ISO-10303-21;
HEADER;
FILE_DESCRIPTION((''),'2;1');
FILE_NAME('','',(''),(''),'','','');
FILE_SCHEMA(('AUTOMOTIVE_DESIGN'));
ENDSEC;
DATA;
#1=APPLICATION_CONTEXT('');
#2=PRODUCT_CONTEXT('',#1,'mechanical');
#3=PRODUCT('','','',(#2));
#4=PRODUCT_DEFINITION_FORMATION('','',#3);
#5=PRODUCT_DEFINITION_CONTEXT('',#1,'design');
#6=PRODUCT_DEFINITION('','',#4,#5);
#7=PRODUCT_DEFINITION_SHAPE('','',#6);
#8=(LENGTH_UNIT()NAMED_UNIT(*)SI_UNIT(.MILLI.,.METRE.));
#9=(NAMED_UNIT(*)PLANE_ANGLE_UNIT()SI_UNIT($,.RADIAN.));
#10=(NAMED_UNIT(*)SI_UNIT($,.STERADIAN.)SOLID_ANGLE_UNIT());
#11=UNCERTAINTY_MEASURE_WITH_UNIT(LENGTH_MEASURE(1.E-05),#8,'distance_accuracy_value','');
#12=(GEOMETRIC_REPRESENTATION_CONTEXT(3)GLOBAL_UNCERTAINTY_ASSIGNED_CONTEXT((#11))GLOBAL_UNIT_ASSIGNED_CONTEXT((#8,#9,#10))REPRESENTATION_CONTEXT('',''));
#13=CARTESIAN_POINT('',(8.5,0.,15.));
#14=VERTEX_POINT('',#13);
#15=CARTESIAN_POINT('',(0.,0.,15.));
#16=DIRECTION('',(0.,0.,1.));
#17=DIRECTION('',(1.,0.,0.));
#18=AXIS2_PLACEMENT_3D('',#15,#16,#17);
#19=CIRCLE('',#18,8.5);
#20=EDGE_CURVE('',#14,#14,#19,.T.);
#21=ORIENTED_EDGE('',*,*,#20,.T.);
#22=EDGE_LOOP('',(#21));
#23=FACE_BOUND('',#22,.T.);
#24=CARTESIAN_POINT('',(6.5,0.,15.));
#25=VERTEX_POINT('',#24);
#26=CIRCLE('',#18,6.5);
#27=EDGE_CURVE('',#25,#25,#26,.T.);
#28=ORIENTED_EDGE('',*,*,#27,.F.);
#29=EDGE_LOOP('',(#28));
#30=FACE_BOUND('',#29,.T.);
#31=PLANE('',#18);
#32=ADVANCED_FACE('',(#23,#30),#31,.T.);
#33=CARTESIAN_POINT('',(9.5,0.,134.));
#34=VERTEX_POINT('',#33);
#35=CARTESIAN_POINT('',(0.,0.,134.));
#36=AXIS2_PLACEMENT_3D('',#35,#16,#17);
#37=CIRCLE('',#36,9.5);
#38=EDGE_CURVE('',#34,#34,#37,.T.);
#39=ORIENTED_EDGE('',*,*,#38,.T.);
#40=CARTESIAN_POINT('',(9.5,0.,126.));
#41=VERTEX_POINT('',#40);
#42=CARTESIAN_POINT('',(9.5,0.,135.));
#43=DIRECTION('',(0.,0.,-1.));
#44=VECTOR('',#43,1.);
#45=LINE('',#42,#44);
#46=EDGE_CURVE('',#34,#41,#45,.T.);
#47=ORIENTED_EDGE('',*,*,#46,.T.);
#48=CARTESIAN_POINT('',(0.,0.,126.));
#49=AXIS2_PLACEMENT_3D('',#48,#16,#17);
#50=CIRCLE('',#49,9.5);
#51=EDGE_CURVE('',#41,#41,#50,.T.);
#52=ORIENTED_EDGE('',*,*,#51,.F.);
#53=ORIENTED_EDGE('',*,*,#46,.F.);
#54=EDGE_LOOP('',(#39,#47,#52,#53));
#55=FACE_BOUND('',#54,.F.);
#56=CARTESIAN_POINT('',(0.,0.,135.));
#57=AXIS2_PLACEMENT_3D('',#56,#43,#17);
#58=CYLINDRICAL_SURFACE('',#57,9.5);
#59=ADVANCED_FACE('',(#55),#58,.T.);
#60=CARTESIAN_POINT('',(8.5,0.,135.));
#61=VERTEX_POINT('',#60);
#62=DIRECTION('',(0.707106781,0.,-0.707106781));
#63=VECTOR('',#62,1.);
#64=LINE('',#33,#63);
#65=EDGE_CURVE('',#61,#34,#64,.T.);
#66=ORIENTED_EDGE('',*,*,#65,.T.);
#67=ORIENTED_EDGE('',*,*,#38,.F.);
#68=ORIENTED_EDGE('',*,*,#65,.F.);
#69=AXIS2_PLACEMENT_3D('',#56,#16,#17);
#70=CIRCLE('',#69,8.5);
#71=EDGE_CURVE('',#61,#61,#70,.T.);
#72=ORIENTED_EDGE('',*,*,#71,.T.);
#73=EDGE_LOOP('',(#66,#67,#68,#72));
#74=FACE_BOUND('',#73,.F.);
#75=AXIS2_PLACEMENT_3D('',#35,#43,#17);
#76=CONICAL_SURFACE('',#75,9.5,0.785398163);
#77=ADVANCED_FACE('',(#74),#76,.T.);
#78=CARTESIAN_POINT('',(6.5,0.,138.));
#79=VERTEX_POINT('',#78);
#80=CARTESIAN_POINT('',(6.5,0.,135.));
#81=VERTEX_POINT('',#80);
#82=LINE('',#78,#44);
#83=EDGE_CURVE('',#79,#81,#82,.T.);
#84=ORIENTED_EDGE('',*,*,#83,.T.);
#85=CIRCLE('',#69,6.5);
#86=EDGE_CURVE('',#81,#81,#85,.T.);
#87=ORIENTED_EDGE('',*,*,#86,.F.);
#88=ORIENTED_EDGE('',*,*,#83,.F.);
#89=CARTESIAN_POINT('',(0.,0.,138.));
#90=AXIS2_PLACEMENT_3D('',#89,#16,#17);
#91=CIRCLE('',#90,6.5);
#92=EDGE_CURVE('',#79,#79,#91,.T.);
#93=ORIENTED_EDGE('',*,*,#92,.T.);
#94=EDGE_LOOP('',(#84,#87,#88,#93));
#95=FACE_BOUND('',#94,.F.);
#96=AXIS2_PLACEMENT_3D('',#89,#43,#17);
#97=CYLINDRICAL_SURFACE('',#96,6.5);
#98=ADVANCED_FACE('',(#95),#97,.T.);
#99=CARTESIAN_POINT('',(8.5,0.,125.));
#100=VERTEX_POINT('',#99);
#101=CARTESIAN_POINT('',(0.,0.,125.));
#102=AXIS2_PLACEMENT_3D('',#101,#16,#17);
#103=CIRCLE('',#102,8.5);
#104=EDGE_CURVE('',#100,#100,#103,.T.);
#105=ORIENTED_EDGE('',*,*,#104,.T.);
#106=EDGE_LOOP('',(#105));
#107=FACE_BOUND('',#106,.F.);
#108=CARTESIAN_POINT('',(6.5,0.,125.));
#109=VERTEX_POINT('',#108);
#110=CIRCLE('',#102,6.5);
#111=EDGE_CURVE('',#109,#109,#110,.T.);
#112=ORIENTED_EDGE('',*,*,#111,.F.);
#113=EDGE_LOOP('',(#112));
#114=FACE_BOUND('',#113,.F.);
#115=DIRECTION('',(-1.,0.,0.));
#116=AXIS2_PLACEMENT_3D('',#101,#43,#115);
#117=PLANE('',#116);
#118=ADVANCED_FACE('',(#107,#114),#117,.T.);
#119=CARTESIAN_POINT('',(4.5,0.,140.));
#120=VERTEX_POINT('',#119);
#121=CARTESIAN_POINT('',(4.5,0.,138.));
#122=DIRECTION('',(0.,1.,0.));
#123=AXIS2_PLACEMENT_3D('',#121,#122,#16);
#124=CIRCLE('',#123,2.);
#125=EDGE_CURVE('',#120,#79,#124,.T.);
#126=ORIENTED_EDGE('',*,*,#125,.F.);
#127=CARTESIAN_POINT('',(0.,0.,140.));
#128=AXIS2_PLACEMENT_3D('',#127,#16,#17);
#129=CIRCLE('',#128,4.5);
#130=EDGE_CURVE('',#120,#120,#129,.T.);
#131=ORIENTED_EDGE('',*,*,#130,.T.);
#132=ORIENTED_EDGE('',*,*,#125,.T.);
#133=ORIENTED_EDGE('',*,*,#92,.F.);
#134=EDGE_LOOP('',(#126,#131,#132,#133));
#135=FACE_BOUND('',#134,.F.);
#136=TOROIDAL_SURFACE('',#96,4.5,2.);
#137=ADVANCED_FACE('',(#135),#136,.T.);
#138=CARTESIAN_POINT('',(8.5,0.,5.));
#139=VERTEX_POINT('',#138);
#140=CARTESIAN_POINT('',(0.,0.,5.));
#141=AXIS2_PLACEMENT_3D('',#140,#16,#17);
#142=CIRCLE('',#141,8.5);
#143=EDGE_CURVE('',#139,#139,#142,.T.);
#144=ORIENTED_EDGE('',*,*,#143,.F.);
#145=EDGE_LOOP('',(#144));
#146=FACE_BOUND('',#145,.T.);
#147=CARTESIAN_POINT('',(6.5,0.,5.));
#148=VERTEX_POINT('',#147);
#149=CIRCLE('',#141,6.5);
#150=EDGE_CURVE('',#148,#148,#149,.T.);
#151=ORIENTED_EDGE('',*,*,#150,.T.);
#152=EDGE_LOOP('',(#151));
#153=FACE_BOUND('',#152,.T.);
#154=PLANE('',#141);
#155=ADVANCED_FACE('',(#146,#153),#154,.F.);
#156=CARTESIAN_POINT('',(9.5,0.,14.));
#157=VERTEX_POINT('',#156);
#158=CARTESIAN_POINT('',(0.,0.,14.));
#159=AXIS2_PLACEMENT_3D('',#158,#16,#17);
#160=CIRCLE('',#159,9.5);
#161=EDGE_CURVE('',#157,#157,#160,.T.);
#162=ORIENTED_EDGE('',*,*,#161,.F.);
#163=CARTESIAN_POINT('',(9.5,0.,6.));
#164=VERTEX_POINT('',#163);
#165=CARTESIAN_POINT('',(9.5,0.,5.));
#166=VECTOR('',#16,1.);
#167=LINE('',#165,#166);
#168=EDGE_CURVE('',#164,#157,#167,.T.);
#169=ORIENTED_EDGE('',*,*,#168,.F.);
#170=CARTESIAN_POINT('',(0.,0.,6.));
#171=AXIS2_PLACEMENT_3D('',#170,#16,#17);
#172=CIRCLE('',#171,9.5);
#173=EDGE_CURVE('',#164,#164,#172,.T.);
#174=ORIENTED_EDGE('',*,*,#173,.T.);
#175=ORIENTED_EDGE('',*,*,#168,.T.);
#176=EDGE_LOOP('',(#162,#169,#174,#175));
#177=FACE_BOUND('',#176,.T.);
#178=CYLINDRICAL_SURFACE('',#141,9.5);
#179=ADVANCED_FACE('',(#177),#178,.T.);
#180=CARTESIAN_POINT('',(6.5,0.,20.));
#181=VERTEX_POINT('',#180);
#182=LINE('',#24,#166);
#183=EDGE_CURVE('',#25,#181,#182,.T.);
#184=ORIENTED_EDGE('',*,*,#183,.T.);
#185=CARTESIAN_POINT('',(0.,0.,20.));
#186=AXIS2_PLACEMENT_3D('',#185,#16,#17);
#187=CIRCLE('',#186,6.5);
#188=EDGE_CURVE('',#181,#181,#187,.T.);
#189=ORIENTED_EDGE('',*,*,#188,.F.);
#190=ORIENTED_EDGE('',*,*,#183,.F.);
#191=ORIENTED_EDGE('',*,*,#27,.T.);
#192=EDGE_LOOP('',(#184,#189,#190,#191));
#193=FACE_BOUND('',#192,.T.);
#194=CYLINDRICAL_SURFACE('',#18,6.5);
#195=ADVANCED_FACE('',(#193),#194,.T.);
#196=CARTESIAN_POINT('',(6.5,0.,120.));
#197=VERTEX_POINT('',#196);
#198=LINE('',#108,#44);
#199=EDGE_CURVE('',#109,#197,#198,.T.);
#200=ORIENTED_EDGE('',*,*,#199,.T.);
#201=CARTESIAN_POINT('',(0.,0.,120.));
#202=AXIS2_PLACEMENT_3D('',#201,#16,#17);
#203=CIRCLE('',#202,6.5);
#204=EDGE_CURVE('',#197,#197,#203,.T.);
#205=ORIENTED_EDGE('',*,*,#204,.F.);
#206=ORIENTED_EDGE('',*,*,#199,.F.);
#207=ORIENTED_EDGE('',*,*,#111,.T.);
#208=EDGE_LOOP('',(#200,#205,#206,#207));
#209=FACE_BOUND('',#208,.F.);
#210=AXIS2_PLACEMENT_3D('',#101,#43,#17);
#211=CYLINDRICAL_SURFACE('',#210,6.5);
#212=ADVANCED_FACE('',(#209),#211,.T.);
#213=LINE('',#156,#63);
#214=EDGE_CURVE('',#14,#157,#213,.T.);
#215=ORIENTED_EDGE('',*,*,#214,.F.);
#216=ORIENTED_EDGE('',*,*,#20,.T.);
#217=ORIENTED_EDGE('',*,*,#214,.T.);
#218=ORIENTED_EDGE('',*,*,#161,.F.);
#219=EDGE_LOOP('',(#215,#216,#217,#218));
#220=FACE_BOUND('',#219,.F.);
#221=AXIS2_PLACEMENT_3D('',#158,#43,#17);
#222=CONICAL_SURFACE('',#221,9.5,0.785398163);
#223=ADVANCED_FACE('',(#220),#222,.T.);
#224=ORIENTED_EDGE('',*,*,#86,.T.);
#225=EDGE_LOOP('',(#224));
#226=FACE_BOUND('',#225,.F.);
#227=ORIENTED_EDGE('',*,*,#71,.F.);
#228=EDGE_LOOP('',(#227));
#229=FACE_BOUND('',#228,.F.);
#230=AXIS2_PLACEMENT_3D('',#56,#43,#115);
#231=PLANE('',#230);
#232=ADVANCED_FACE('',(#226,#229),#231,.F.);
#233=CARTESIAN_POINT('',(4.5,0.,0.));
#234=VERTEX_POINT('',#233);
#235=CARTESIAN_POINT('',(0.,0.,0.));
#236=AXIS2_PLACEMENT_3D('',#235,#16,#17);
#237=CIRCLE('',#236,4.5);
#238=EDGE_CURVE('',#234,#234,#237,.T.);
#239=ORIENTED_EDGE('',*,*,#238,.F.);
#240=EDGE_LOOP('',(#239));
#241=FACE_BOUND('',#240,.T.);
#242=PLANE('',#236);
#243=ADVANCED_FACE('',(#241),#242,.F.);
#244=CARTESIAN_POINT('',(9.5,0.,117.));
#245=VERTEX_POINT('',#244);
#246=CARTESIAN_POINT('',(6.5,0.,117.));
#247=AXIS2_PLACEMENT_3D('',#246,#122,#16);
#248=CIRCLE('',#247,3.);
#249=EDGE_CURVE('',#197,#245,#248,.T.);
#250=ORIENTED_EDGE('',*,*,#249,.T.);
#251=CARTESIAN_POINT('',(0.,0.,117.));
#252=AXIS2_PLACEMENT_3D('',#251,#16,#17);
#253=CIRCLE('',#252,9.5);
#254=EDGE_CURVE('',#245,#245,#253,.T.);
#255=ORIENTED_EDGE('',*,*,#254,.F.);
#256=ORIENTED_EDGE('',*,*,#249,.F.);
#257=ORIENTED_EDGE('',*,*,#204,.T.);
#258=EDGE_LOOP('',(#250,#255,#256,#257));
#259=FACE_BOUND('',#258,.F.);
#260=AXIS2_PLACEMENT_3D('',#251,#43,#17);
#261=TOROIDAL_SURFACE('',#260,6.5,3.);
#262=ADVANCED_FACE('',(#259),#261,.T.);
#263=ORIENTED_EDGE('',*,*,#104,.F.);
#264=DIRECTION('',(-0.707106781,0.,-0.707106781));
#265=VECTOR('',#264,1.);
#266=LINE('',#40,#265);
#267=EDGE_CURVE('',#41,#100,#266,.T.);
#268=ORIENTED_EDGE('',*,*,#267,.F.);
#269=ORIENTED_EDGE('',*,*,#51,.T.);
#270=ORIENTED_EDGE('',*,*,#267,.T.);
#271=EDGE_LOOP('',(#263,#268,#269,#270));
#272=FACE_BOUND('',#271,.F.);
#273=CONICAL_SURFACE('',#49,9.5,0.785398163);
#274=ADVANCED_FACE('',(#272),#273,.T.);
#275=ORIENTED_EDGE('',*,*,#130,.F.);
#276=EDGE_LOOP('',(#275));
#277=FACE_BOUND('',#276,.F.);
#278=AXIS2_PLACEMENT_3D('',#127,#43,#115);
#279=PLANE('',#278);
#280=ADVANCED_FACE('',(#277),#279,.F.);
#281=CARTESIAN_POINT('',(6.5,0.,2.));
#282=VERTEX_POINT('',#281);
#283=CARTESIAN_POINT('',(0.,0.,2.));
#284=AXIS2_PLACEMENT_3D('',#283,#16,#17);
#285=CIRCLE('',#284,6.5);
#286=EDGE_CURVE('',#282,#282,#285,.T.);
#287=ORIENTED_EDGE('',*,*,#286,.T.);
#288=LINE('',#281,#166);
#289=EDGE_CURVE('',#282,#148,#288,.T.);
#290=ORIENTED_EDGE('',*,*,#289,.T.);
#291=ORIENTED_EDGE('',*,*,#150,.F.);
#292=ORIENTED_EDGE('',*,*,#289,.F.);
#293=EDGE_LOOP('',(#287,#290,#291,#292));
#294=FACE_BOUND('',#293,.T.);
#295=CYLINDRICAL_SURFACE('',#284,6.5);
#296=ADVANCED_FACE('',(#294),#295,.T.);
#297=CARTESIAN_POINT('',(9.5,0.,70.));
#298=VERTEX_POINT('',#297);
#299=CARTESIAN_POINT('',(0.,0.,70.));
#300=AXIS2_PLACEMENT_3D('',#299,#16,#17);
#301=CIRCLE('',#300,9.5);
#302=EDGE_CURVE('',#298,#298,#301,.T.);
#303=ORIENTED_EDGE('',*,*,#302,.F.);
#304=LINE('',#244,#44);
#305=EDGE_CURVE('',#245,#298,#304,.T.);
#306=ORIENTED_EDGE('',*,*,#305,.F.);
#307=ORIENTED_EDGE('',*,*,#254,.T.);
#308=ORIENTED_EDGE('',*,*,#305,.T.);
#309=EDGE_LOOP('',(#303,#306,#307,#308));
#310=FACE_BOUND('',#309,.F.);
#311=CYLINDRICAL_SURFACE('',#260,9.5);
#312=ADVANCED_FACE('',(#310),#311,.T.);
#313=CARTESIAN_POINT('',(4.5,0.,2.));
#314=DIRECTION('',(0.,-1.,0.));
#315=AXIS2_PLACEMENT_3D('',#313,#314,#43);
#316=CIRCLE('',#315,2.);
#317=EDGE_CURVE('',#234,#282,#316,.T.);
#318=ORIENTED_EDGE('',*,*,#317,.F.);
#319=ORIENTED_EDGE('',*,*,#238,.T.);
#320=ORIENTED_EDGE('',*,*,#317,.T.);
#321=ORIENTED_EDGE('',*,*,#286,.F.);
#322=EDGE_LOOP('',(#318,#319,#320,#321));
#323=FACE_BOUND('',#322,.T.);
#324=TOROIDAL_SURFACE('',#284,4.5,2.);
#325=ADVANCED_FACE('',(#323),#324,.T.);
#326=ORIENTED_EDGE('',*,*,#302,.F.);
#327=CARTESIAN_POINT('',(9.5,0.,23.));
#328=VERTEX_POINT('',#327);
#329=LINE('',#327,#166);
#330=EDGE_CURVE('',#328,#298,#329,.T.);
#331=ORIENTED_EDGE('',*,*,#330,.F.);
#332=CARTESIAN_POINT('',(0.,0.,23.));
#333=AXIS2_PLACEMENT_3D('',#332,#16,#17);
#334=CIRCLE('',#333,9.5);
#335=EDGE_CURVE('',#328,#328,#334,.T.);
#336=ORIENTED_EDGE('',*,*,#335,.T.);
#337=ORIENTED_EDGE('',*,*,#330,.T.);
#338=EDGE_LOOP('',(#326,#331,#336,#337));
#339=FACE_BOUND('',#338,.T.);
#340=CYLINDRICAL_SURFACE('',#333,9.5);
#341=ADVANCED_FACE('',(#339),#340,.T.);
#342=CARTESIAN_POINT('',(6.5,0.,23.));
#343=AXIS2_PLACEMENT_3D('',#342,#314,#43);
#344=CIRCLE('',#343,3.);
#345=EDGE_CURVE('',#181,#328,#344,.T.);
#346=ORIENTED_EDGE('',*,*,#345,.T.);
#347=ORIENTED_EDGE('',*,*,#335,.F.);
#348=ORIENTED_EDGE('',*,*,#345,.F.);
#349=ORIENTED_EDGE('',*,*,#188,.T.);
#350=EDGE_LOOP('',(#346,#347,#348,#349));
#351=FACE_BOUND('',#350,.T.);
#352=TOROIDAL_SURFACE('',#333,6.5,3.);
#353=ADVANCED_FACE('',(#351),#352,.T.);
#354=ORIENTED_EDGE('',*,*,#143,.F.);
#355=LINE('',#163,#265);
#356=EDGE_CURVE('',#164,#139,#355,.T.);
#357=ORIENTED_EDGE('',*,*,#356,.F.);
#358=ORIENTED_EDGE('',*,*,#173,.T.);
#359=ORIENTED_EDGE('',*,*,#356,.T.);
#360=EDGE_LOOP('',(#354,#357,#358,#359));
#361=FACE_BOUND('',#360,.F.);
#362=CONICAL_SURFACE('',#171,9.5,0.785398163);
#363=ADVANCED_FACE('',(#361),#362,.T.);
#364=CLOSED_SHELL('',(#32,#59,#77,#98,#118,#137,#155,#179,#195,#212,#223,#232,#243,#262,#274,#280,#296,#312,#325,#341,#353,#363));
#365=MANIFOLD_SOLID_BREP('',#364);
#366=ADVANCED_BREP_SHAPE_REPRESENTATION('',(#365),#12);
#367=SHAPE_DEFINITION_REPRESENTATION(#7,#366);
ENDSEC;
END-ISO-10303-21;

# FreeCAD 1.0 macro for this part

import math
import FreeCAD as App
import Part
import Sketcher

V = App.Vector


def edges_at(feature, points):
    """Names of the edges that pass closest to the given points."""
    edges = feature.Shape.Edges
    near = lambda p: min(range(len(edges)), key=lambda i: edges[i].distToShape(Part.Vertex(*p))[0])
    return sorted({f"Edge{near(p) + 1}" for p in points})

doc = App.newDocument("Part")
body = doc.addObject("PartDesign::Body", "Body")

sketch1 = body.newObject("Sketcher::SketchObject", "Sketch")
sketch1.AttachmentSupport = (doc.getObject("XZ_Plane"), [""])
sketch1.MapMode = "FlatFace"
sketch1.addGeometry([
    Part.LineSegment(V(0, 70, 0), V(0, 0, 0)),
    Part.LineSegment(V(0, 0, 0), V(4.5, 0, 0)),
    Part.ArcOfCircle(Part.Circle(V(4.5, 2, 0), V(0, 0, 1), 2), math.radians(-90), math.radians(0)),
    Part.LineSegment(V(6.5, 2, 0), V(6.5, 5, 0)),
    Part.LineSegment(V(6.5, 5, 0), V(9.5, 5, 0)),
    Part.LineSegment(V(9.5, 5, 0), V(9.5, 15, 0)),
    Part.LineSegment(V(9.5, 15, 0), V(6.5, 15, 0)),
    Part.LineSegment(V(6.5, 15, 0), V(6.5, 20, 0)),
    Part.ArcOfCircle(Part.Circle(V(6.5, 23, 0), V(0, 0, 1), 3), math.radians(-90), math.radians(0)),
    Part.LineSegment(V(9.5, 23, 0), V(9.5, 70, 0)),
    Part.LineSegment(V(9.5, 70, 0), V(0, 70, 0)),
], False)
sketch1.addConstraint([
    Sketcher.Constraint("Coincident", 0, 2, 1, 1),
    Sketcher.Constraint("Tangent", 1, 2, 2, 1),
    Sketcher.Constraint("Tangent", 2, 2, 3, 1),
    Sketcher.Constraint("Coincident", 3, 2, 4, 1),
    Sketcher.Constraint("Coincident", 4, 2, 5, 1),
    Sketcher.Constraint("Coincident", 5, 2, 6, 1),
    Sketcher.Constraint("Coincident", 6, 2, 7, 1),
    Sketcher.Constraint("Coincident", 7, 2, 8, 1),
    Sketcher.Constraint("Tangent", 8, 2, 9, 1),
    Sketcher.Constraint("Coincident", 9, 2, 10, 1),
    Sketcher.Constraint("Coincident", 10, 2, 0, 1),
    Sketcher.Constraint("Vertical", 0),
    Sketcher.Constraint("Horizontal", 1),
    Sketcher.Constraint("Vertical", 3),
    Sketcher.Constraint("Horizontal", 4),
    Sketcher.Constraint("Vertical", 5),
    Sketcher.Constraint("Horizontal", 6),
    Sketcher.Constraint("Vertical", 7),
    Sketcher.Constraint("Vertical", 9),
    Sketcher.Constraint("Horizontal", 10),
    Sketcher.Constraint("Coincident", 0, 2, -1, 1),
    Sketcher.Constraint("Vertical", 8, 3, 2, 2),
    Sketcher.Constraint("Vertical", 3, 2, 6, 2),
    Sketcher.Constraint("Vertical", 5, 2, 8, 2),
    Sketcher.Constraint("Equal", 6, 3),
    Sketcher.Constraint("Radius", 2, 2.0),
    Sketcher.Constraint("Radius", 8, 3.0),
    Sketcher.Constraint("DistanceY", 0, 2, 0, 1, 70.0),
    Sketcher.Constraint("DistanceY", 5, 1, 5, 2, 10.0),
    Sketcher.Constraint("DistanceY", 7, 1, 7, 2, 5.0),
    Sketcher.Constraint("DistanceX", 1, 1, 1, 2, 4.5),
])
revolution = body.newObject("PartDesign::Revolution", "Revolution")
revolution.Profile = sketch1
revolution.ReferenceAxis = (sketch1, ["V_Axis"])
revolution.Angle = 360
body2 = doc.addObject("PartDesign::Body", "Body001")
doc.recompute()

body2.BaseFeature = body
doc.recompute()

mirroring = doc.addObject("Part::Mirroring", "Mirroring")
mirroring.Source = body
mirroring.Base = V(0, 0, 70)
mirroring.Normal = V(0, 0, 1)
body3 = doc.addObject("PartDesign::Body", "Body002")
body3.BaseFeature = mirroring
boolean = body2.newObject("PartDesign::Boolean", "Boolean")
boolean.Type = "Fuse"
boolean.addObjects([body3])
doc.recompute()

chamfer = body2.newObject("PartDesign::Chamfer", "Chamfer")
chamfer.Base = (boolean, edges_at(boolean, [
    (-9.5, 0, 135),
    (-9.5, 0, 125),
    (9.5, 0, 130),
    (-9.5, 0, 5),
    (-9.5, 0, 15),
    (9.5, 0, 10),
]))
chamfer.Size = 1
mirroring.Visibility = False

doc.recompute()
